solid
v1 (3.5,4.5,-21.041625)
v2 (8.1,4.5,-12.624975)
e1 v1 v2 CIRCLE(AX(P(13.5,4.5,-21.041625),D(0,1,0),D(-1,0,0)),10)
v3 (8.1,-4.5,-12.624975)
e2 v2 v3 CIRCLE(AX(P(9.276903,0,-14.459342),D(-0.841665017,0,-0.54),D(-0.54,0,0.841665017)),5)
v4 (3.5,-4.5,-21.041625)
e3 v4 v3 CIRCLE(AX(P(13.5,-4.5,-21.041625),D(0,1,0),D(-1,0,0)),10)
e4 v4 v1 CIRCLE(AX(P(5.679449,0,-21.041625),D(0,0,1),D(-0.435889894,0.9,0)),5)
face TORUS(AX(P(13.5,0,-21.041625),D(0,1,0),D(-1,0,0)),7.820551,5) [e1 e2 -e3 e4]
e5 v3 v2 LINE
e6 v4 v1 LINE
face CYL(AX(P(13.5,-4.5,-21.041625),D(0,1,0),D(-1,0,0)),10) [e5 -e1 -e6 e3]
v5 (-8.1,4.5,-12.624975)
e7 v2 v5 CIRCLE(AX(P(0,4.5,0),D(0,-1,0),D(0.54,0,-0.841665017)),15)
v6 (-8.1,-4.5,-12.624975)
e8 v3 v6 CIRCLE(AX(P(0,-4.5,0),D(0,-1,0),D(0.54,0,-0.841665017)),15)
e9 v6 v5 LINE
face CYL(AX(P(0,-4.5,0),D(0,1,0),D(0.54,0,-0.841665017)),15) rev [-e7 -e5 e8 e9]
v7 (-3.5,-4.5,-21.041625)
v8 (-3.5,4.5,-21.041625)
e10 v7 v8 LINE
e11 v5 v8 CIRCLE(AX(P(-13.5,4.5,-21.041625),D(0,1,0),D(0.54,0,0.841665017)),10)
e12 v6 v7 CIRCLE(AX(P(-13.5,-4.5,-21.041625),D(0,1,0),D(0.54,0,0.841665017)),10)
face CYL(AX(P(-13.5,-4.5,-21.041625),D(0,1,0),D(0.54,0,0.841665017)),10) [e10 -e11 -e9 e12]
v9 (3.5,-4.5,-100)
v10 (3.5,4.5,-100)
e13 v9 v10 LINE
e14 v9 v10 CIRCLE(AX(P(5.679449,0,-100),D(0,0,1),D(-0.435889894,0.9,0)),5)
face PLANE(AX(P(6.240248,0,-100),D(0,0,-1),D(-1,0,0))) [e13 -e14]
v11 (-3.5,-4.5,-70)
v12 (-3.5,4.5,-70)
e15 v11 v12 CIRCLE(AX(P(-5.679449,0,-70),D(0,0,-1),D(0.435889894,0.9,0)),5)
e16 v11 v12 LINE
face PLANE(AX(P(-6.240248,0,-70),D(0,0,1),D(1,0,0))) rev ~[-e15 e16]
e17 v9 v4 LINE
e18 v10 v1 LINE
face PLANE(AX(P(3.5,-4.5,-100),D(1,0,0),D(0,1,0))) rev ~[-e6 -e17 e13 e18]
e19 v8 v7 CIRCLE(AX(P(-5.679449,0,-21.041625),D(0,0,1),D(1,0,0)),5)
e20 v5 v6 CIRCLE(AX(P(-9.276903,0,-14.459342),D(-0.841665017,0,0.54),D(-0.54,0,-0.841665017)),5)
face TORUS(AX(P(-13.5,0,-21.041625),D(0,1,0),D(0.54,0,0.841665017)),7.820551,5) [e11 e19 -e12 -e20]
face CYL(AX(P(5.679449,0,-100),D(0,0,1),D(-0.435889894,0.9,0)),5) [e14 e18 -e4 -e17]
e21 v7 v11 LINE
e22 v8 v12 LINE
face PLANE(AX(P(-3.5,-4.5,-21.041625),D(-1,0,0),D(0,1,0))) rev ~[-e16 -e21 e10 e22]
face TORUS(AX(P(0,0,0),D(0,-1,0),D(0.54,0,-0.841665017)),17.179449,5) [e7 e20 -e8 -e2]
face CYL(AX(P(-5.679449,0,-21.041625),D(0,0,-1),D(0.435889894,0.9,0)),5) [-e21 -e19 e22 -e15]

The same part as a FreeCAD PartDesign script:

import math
import FreeCAD as App
import Part
import Sketcher
from FreeCAD import Vector
Q = App.Units.Quantity

doc = App.newDocument("Part")
body = doc.addObject("PartDesign::Body", "Body")

# Sketch on XY plane
sketch1 = doc.addObject("Sketcher::SketchObject", "Sketch")
body.addObject(sketch1)
sketch1.AttachmentSupport = (doc.XY_Plane, [""])
sketch1.MapMode = "FlatFace"
sketch1.AttachmentOffset = App.Placement(Vector(0, 0, -70), App.Rotation())
sketch1.addGeometry(Part.LineSegment(Vector(-4, -4, 0), Vector(-4, 4, 0)), False)
sketch1.addGeometry(Part.ArcOfCircle(Part.Circle(Vector(-6, 0, 0), Vector(0, 0, 1), 5), math.radians(64), math.radians(296)), False)
sketch1.addConstraint(Sketcher.Constraint("Coincident", 0, 1, 1, 2))
sketch1.addConstraint(Sketcher.Constraint("Coincident", 1, 1, 0, 2))
sketch1.addConstraint(Sketcher.Constraint("Vertical", 0))
sketch1.addConstraint(Sketcher.Constraint("PointOnObject", 1, 3, -1))
sketch1.addConstraint(Sketcher.Constraint("Radius", 1, Q("5 mm")))
sketch1.addConstraint(Sketcher.Constraint("DistanceY", 0, 1, 0, 2, Q("9 mm")))
sketch1.addConstraint(Sketcher.Constraint("DistanceX", 0, 1, -1, 1, Q("3.5 mm")))

# Sketch on XZ plane
sketch2 = doc.addObject("Sketcher::SketchObject", "Sketch001")
body.addObject(sketch2)
sketch2.AttachmentSupport = (doc.XZ_Plane, [""])
sketch2.MapMode = "FlatFace"
sketch2.addGeometry(Part.LineSegment(Vector(4, -100, 0), Vector(4, -21, 0)), False)
sketch2.addGeometry(Part.ArcOfCircle(Part.Circle(Vector(14, -21, 0), Vector(0, 0, 1), 10), math.radians(123), math.radians(180)), False)
sketch2.addGeometry(Part.ArcOfCircle(Part.Circle(Vector(0, 0, 0), Vector(0, 0, 1), 15), math.radians(-57), math.radians(237)), False)
sketch2.addGeometry(Part.ArcOfCircle(Part.Circle(Vector(-14, -21, 0), Vector(0, 0, 1), 10), math.radians(0), math.radians(57)), False)
sketch2.addGeometry(Part.LineSegment(Vector(-4, -21, 0), Vector(-4, -70, 0)), False)
sketch2.addConstraint(Sketcher.Constraint("Tangent", 0, 2, 1, 2))
sketch2.addConstraint(Sketcher.Constraint("Tangent", 1, 1, 2, 1))
sketch2.addConstraint(Sketcher.Constraint("Tangent", 2, 2, 3, 2))
sketch2.addConstraint(Sketcher.Constraint("Tangent", 3, 1, 4, 1))
sketch2.addConstraint(Sketcher.Constraint("Vertical", 0))
sketch2.addConstraint(Sketcher.Constraint("Vertical", 4))
sketch2.addConstraint(Sketcher.Constraint("Coincident", 2, 3, -1, 1))
sketch2.addConstraint(Sketcher.Constraint("Equal", 1, 3))
sketch2.addConstraint(Sketcher.Constraint("Horizontal", 1, 3, 3, 3))
sketch2.addConstraint(Sketcher.Constraint("Radius", 1, Q("10 mm")))
sketch2.addConstraint(Sketcher.Constraint("Radius", 2, Q("15 mm")))
sketch2.addConstraint(Sketcher.Constraint("DistanceY", 0, 1, -1, 1, Q("100 mm")))
sketch2.addConstraint(Sketcher.Constraint("DistanceY", 4, 2, -1, 1, Q("70 mm")))
sketch2.addConstraint(Sketcher.Constraint("DistanceX", 3, 3, 1, 3, Q("27 mm")))
doc.recompute()

additivepipe = doc.addObject("PartDesign::AdditivePipe", "AdditivePipe")
body.addObject(additivepipe)
additivepipe.Profile = sketch1
additivepipe.Spine = (sketch2, ["Edge1", "Edge2", "Edge3", "Edge4", "Edge5"])

doc.recompute()
